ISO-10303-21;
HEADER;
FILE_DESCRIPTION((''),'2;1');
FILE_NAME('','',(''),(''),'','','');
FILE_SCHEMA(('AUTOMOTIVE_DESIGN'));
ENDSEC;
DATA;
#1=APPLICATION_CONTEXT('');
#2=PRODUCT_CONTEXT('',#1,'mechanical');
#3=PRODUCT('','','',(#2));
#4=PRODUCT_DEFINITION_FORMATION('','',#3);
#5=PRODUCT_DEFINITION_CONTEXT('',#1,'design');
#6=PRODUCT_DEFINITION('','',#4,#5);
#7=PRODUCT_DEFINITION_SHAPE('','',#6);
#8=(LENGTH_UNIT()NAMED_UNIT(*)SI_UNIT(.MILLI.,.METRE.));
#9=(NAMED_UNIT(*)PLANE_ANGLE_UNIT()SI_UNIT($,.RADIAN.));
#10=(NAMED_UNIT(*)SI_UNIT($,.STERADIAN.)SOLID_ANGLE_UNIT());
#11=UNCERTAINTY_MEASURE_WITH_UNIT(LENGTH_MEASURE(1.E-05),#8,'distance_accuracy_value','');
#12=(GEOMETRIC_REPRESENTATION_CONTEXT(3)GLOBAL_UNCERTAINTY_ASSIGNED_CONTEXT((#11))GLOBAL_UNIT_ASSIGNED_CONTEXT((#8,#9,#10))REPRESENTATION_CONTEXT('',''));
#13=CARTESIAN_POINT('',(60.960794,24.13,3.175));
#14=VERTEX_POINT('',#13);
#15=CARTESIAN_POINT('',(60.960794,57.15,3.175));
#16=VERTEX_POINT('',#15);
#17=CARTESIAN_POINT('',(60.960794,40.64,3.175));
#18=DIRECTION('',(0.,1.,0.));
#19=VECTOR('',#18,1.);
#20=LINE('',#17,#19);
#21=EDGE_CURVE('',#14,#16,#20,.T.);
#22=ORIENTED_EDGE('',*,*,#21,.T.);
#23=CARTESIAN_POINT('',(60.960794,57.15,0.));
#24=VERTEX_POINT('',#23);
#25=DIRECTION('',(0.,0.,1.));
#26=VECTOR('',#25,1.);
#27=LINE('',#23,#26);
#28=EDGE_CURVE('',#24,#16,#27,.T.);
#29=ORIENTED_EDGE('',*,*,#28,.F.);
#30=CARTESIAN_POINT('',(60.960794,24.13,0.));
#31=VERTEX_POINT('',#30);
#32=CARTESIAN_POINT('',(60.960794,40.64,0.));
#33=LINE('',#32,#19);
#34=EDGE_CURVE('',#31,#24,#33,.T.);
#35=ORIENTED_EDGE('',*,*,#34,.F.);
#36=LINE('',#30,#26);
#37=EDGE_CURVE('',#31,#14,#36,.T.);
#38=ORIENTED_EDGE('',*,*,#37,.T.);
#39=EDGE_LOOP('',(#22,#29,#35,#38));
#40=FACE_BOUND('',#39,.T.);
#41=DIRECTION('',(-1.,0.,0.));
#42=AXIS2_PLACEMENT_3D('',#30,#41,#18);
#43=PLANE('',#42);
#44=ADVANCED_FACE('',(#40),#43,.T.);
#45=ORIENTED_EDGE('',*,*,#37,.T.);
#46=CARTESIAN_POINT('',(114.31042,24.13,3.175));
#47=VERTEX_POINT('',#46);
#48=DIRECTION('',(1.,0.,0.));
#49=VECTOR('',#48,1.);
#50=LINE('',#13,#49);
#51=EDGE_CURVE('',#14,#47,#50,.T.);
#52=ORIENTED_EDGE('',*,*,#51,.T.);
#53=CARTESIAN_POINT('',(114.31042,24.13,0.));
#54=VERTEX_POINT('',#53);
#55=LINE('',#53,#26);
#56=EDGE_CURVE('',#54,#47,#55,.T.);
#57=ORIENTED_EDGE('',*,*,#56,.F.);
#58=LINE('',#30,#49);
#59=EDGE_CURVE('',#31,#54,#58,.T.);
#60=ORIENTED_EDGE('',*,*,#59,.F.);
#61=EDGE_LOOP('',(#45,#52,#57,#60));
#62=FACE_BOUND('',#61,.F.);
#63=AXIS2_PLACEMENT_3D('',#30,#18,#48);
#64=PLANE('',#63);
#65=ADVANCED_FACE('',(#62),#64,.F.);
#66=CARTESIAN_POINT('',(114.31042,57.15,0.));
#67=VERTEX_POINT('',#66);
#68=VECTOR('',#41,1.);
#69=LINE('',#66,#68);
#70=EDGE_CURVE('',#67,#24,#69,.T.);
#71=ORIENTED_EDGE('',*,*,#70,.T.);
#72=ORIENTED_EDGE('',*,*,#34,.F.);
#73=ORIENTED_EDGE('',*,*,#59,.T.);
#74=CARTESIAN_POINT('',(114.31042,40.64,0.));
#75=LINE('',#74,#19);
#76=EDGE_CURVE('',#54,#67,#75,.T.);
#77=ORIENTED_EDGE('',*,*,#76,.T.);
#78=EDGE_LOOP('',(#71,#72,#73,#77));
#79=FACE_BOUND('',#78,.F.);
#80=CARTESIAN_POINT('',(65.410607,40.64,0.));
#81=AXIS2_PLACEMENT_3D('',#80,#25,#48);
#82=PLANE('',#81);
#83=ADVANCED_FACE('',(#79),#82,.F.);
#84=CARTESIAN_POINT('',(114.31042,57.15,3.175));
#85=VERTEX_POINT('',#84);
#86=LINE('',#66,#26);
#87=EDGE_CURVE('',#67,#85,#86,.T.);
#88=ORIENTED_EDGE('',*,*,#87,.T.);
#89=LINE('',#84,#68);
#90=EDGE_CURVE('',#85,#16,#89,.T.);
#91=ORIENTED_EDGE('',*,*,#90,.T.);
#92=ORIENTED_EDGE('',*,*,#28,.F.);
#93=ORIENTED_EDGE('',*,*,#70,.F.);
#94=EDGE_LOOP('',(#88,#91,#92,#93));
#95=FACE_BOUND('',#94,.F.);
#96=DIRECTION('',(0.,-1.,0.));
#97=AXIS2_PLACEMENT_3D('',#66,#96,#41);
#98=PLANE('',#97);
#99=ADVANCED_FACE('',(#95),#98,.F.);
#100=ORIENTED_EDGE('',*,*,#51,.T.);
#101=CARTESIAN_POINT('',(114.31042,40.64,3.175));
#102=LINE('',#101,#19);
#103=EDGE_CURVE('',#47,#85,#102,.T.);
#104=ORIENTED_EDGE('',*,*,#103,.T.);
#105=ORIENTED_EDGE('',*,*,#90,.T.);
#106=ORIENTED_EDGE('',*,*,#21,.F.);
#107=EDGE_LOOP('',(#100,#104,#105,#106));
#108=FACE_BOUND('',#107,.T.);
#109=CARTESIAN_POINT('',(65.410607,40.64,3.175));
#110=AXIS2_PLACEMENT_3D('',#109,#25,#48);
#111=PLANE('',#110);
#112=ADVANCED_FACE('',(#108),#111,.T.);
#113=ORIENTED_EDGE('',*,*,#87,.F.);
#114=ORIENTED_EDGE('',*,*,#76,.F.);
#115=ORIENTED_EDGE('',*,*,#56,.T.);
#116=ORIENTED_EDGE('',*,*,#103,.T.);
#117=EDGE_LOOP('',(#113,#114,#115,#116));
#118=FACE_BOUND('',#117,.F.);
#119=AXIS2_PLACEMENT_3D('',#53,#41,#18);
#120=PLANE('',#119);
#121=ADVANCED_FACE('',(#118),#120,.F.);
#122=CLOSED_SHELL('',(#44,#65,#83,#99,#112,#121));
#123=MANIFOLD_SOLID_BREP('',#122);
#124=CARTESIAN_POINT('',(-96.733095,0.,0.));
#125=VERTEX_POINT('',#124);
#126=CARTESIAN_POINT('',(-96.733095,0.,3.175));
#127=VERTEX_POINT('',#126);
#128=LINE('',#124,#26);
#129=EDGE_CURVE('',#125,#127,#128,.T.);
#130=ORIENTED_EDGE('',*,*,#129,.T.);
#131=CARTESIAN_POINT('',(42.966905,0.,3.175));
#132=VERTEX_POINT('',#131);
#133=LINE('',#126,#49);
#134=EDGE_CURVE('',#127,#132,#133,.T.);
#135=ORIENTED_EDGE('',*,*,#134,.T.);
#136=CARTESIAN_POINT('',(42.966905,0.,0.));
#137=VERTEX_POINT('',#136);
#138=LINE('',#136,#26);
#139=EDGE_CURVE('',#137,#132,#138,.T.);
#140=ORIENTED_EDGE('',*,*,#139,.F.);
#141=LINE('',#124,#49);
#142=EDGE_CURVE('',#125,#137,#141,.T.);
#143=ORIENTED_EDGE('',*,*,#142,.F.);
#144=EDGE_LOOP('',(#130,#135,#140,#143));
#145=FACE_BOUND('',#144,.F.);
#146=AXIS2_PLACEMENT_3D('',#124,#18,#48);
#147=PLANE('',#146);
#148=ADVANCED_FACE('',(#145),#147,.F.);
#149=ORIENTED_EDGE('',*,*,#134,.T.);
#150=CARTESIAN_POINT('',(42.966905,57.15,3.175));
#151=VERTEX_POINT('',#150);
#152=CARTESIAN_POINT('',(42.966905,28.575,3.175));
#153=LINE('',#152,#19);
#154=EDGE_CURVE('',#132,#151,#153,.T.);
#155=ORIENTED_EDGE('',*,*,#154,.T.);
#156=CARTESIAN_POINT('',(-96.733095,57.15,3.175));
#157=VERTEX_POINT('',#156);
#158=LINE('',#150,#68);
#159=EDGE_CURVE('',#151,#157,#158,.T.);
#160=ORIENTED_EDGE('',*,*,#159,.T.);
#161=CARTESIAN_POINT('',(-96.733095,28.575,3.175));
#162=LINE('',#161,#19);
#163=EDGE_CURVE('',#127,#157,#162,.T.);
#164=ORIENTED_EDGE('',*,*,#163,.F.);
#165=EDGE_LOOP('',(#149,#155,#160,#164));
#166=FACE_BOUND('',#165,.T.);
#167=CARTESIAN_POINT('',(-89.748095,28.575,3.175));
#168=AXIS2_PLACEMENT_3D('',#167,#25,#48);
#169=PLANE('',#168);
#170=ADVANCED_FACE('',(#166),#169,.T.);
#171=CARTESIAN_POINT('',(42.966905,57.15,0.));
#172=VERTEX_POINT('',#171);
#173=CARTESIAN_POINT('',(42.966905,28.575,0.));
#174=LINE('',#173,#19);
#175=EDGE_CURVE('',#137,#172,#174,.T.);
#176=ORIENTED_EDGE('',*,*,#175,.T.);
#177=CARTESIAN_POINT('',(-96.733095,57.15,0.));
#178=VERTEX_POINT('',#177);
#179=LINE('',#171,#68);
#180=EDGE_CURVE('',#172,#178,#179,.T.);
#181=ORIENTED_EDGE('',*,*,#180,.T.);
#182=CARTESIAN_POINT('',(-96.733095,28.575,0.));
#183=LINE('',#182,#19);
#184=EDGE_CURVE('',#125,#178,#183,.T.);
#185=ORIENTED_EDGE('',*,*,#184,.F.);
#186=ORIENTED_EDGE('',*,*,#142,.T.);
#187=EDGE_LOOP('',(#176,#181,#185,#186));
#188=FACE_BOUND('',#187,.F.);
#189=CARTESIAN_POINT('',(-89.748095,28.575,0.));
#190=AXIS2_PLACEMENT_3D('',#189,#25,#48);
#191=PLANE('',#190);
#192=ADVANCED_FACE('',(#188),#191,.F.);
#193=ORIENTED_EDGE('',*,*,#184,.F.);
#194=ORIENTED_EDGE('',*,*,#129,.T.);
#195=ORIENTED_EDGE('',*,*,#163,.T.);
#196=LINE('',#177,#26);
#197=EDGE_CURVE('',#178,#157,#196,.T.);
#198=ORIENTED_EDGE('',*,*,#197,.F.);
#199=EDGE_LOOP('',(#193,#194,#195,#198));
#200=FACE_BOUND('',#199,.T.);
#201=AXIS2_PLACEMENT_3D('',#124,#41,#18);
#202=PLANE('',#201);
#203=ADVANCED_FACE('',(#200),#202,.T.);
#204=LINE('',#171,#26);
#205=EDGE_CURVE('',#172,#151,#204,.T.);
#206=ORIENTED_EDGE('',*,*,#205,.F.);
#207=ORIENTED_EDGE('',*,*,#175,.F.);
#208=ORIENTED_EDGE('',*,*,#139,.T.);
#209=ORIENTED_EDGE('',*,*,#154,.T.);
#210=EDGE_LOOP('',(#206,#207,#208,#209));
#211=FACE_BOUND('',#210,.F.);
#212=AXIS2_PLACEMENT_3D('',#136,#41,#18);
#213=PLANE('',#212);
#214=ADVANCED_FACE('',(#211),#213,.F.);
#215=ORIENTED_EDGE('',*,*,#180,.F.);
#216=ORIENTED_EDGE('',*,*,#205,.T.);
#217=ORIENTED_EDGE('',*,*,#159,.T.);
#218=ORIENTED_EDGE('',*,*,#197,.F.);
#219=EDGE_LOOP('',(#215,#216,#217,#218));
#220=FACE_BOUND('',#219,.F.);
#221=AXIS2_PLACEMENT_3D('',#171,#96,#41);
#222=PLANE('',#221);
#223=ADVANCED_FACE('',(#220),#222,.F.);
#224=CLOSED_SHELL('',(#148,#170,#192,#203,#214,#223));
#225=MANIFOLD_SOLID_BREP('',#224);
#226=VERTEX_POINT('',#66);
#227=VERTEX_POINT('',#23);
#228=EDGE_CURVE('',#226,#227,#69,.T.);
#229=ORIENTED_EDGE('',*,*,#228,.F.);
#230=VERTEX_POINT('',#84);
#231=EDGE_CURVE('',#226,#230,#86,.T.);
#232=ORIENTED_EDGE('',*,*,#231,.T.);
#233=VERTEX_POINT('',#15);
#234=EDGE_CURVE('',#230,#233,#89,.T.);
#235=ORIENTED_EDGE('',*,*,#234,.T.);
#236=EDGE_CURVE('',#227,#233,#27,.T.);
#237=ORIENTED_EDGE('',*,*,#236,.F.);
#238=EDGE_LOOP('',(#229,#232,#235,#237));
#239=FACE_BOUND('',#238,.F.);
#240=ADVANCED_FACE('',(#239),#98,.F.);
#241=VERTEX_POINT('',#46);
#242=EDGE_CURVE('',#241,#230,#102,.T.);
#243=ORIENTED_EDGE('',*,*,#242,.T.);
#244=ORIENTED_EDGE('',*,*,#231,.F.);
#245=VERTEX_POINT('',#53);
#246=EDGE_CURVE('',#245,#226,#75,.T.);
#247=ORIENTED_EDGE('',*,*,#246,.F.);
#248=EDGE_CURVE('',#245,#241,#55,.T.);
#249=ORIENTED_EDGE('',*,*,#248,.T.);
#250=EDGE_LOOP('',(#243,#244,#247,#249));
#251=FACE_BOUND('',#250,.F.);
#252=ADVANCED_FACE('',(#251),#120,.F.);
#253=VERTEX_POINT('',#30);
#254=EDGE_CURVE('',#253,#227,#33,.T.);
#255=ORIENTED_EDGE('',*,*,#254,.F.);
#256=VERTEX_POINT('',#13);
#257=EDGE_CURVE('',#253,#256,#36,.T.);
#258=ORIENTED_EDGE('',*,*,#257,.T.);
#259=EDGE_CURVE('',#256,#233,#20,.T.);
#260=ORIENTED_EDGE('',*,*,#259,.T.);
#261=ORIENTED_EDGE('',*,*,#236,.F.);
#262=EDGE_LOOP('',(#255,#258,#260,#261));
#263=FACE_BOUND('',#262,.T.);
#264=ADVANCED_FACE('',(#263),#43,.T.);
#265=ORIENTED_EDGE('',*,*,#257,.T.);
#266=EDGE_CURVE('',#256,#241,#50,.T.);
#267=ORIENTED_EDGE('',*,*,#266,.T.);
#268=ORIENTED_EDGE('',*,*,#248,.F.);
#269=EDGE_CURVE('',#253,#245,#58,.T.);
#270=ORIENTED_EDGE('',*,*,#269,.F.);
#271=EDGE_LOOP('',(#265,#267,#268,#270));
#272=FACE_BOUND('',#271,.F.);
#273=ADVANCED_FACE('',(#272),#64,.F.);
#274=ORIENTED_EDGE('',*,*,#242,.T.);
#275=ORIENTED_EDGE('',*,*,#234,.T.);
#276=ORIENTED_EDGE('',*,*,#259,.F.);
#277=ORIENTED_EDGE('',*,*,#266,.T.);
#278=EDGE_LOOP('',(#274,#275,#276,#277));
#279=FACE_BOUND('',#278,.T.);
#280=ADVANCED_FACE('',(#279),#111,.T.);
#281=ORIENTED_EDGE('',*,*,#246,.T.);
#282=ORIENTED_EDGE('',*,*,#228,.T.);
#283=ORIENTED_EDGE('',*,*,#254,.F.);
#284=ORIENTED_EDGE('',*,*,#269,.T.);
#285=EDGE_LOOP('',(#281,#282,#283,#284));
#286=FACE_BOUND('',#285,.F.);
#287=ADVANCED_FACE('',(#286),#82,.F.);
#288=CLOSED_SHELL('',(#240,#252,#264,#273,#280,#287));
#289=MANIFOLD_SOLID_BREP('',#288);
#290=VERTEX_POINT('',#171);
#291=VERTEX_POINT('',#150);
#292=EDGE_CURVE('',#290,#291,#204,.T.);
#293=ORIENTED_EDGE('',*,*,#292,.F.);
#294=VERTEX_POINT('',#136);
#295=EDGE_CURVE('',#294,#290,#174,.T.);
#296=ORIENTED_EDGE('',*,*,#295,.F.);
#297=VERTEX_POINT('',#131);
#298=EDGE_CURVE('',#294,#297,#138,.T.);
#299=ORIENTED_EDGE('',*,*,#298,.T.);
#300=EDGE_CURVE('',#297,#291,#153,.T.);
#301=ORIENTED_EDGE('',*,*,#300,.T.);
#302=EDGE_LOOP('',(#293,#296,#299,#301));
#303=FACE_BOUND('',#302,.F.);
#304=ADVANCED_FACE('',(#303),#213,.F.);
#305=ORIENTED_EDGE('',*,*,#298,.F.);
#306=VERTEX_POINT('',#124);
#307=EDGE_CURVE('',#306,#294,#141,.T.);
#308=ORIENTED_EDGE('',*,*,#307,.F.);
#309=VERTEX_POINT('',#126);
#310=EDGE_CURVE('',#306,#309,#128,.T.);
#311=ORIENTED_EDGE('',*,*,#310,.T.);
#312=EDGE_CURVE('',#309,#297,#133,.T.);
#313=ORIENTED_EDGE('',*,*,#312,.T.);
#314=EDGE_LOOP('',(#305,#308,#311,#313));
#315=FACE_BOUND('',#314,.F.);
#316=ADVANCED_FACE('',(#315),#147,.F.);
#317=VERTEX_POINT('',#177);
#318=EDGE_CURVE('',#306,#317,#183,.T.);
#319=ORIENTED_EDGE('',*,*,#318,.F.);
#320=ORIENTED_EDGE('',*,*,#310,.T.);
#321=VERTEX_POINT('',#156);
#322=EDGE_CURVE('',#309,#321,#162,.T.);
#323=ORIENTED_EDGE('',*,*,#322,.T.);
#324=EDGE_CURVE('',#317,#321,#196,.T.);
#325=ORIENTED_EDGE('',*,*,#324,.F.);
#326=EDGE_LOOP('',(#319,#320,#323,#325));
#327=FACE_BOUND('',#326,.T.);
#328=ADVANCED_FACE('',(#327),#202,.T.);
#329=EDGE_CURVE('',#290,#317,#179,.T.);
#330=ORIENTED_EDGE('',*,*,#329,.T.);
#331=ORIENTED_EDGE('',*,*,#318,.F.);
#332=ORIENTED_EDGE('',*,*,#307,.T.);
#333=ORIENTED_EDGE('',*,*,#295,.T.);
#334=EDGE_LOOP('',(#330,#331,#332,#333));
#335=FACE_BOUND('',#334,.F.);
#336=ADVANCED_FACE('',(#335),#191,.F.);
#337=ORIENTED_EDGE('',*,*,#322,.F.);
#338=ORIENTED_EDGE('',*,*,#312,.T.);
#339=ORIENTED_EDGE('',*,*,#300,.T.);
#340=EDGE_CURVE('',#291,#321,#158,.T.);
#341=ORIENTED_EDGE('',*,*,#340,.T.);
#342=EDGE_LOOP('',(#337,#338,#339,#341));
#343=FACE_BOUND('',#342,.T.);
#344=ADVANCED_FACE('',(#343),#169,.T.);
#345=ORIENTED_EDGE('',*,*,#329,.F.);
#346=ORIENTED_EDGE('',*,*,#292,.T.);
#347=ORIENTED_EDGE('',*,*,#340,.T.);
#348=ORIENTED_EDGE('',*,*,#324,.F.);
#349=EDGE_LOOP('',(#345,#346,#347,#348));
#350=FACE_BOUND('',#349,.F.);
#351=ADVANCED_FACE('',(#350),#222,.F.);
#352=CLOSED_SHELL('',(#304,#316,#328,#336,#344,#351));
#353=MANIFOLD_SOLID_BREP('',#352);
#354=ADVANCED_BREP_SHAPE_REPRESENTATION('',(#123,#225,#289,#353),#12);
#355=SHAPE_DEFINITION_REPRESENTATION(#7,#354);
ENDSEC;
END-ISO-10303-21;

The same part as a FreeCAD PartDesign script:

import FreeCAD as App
import Part
import Sketcher
Q = App.Units.Quantity

doc = App.newDocument("Part")
body = doc.addObject("PartDesign::Body", "Body")
body.AllowCompound = True

# Sketch on XY plane
sketch1 = body.newObject("Sketcher::SketchObject", "Sketch")
sketch1.AttachmentSupport = (doc.getObject("XY_Plane"), [""])
sketch1.MapMode = "FlatFace"
sketch1.addGeometry(Part.LineSegment(App.Vector(-97, 57, 0), App.Vector(-97, 0, 0)), False)
sketch1.addGeometry(Part.LineSegment(App.Vector(-97, 0, 0), App.Vector(43, 0, 0)), False)
sketch1.addGeometry(Part.LineSegment(App.Vector(43, 0, 0), App.Vector(43, 57, 0)), False)
sketch1.addGeometry(Part.LineSegment(App.Vector(43, 57, 0), App.Vector(-97, 57, 0)), False)
sketch1.addGeometry(Part.LineSegment(App.Vector(61, 57, 0), App.Vector(61, 24, 0)), False)
sketch1.addGeometry(Part.LineSegment(App.Vector(61, 24, 0), App.Vector(114, 24, 0)), False)
sketch1.addGeometry(Part.LineSegment(App.Vector(114, 24, 0), App.Vector(114, 57, 0)), False)
sketch1.addGeometry(Part.LineSegment(App.Vector(114, 57, 0), App.Vector(61, 57, 0)), False)
sketch1.addConstraint(Sketcher.Constraint("Coincident", 0, 2, 1, 1))
sketch1.addConstraint(Sketcher.Constraint("Coincident", 1, 2, 2, 1))
sketch1.addConstraint(Sketcher.Constraint("Coincident", 2, 2, 3, 1))
sketch1.addConstraint(Sketcher.Constraint("Coincident", 3, 2, 0, 1))
sketch1.addConstraint(Sketcher.Constraint("Coincident", 4, 2, 5, 1))
sketch1.addConstraint(Sketcher.Constraint("Coincident", 5, 2, 6, 1))
sketch1.addConstraint(Sketcher.Constraint("Coincident", 6, 2, 7, 1))
sketch1.addConstraint(Sketcher.Constraint("Coincident", 7, 2, 4, 1))
sketch1.addConstraint(Sketcher.Constraint("Vertical", 0))
sketch1.addConstraint(Sketcher.Constraint("Horizontal", 1))
sketch1.addConstraint(Sketcher.Constraint("Vertical", 2))
sketch1.addConstraint(Sketcher.Constraint("Horizontal", 3))
sketch1.addConstraint(Sketcher.Constraint("Vertical", 4))
sketch1.addConstraint(Sketcher.Constraint("Horizontal", 5))
sketch1.addConstraint(Sketcher.Constraint("Vertical", 6))
sketch1.addConstraint(Sketcher.Constraint("Horizontal", 7))
sketch1.addConstraint(Sketcher.Constraint("PointOnObject", 0, 2, -1))
sketch1.addConstraint(Sketcher.Constraint("Horizontal", 3, 2, 6, 2))
sketch1.addConstraint(Sketcher.Constraint("DistanceX", 1, 1, 1, 2, Q("5.5 in")))
sketch1.addConstraint(Sketcher.Constraint("DistanceY", 4, 2, 4, 1, Q("1.3 in")))
sketch1.addConstraint(Sketcher.Constraint("DistanceY", 0, 2, 0, 1, Q("2.25 in")))
sketch1.addConstraint(Sketcher.Constraint("DistanceX", 1, 2, 5, 2, Q("2.8087998 in")))
sketch1.addConstraint(Sketcher.Constraint("DistanceX", 5, 1, 5, 2, Q("53.349626 mm")))
sketch1.addConstraint(Sketcher.Constraint("DistanceX", -1, 1, 5, 2, Q("114.31042 mm")))
pad1 = body.newObject("PartDesign::Pad", "Pad")
pad1.Profile = sketch1
pad1.Length = Q("0.125 in")
body2 = doc.addObject("PartDesign::Body", "Body001")
body2.AllowCompound = True

# Sketch on XY plane
sketch2 = body2.newObject("Sketcher::SketchObject", "Sketch001")
sketch2.AttachmentSupport = (doc.getObject("XY_Plane001"), [""])
sketch2.MapMode = "FlatFace"
sketch2.addGeometry(Part.LineSegment(App.Vector(-97, 57, 0), App.Vector(-97, 0, 0)), False)
sketch2.addGeometry(Part.LineSegment(App.Vector(-97, 0, 0), App.Vector(43, 0, 0)), False)
sketch2.addGeometry(Part.LineSegment(App.Vector(43, 0, 0), App.Vector(43, 57, 0)), False)
sketch2.addGeometry(Part.LineSegment(App.Vector(43, 57, 0), App.Vector(-97, 57, 0)), False)
sketch2.addGeometry(Part.LineSegment(App.Vector(61, 57, 0), App.Vector(61, 24, 0)), False)
sketch2.addGeometry(Part.LineSegment(App.Vector(61, 24, 0), App.Vector(114, 24, 0)), False)
sketch2.addGeometry(Part.LineSegment(App.Vector(114, 24, 0), App.Vector(114, 57, 0)), False)
sketch2.addGeometry(Part.LineSegment(App.Vector(114, 57, 0), App.Vector(61, 57, 0)), False)
sketch2.addConstraint(Sketcher.Constraint("Coincident", 0, 2, 1, 1))
sketch2.addConstraint(Sketcher.Constraint("Coincident", 1, 2, 2, 1))
sketch2.addConstraint(Sketcher.Constraint("Coincident", 2, 2, 3, 1))
sketch2.addConstraint(Sketcher.Constraint("Coincident", 3, 2, 0, 1))
sketch2.addConstraint(Sketcher.Constraint("Coincident", 4, 2, 5, 1))
sketch2.addConstraint(Sketcher.Constraint("Coincident", 5, 2, 6, 1))
sketch2.addConstraint(Sketcher.Constraint("Coincident", 6, 2, 7, 1))
sketch2.addConstraint(Sketcher.Constraint("Coincident", 7, 2, 4, 1))
sketch2.addConstraint(Sketcher.Constraint("Vertical", 0))
sketch2.addConstraint(Sketcher.Constraint("Horizontal", 1))
sketch2.addConstraint(Sketcher.Constraint("Vertical", 2))
sketch2.addConstraint(Sketcher.Constraint("Horizontal", 3))
sketch2.addConstraint(Sketcher.Constraint("Vertical", 4))
sketch2.addConstraint(Sketcher.Constraint("Horizontal", 5))
sketch2.addConstraint(Sketcher.Constraint("Vertical", 6))
sketch2.addConstraint(Sketcher.Constraint("Horizontal", 7))
sketch2.addConstraint(Sketcher.Constraint("PointOnObject", 0, 2, -1))
sketch2.addConstraint(Sketcher.Constraint("Horizontal", 3, 2, 6, 2))
sketch2.addConstraint(Sketcher.Constraint("DistanceX", 1, 1, 1, 2, Q("5.5 in")))
sketch2.addConstraint(Sketcher.Constraint("DistanceY", 4, 2, 4, 1, Q("1.3 in")))
sketch2.addConstraint(Sketcher.Constraint("DistanceY", 0, 2, 0, 1, Q("2.25 in")))
sketch2.addConstraint(Sketcher.Constraint("DistanceX", 1, 2, 5, 2, Q("2.8087998 in")))
sketch2.addConstraint(Sketcher.Constraint("DistanceX", 5, 1, 5, 2, Q("53.349626 mm")))
sketch2.addConstraint(Sketcher.Constraint("DistanceX", -1, 1, 5, 2, Q("114.31042 mm")))
pad2 = body2.newObject("PartDesign::Pad", "Pad001")
pad2.Profile = sketch2
pad2.Length = Q("0.125 in")

doc.recompute()
